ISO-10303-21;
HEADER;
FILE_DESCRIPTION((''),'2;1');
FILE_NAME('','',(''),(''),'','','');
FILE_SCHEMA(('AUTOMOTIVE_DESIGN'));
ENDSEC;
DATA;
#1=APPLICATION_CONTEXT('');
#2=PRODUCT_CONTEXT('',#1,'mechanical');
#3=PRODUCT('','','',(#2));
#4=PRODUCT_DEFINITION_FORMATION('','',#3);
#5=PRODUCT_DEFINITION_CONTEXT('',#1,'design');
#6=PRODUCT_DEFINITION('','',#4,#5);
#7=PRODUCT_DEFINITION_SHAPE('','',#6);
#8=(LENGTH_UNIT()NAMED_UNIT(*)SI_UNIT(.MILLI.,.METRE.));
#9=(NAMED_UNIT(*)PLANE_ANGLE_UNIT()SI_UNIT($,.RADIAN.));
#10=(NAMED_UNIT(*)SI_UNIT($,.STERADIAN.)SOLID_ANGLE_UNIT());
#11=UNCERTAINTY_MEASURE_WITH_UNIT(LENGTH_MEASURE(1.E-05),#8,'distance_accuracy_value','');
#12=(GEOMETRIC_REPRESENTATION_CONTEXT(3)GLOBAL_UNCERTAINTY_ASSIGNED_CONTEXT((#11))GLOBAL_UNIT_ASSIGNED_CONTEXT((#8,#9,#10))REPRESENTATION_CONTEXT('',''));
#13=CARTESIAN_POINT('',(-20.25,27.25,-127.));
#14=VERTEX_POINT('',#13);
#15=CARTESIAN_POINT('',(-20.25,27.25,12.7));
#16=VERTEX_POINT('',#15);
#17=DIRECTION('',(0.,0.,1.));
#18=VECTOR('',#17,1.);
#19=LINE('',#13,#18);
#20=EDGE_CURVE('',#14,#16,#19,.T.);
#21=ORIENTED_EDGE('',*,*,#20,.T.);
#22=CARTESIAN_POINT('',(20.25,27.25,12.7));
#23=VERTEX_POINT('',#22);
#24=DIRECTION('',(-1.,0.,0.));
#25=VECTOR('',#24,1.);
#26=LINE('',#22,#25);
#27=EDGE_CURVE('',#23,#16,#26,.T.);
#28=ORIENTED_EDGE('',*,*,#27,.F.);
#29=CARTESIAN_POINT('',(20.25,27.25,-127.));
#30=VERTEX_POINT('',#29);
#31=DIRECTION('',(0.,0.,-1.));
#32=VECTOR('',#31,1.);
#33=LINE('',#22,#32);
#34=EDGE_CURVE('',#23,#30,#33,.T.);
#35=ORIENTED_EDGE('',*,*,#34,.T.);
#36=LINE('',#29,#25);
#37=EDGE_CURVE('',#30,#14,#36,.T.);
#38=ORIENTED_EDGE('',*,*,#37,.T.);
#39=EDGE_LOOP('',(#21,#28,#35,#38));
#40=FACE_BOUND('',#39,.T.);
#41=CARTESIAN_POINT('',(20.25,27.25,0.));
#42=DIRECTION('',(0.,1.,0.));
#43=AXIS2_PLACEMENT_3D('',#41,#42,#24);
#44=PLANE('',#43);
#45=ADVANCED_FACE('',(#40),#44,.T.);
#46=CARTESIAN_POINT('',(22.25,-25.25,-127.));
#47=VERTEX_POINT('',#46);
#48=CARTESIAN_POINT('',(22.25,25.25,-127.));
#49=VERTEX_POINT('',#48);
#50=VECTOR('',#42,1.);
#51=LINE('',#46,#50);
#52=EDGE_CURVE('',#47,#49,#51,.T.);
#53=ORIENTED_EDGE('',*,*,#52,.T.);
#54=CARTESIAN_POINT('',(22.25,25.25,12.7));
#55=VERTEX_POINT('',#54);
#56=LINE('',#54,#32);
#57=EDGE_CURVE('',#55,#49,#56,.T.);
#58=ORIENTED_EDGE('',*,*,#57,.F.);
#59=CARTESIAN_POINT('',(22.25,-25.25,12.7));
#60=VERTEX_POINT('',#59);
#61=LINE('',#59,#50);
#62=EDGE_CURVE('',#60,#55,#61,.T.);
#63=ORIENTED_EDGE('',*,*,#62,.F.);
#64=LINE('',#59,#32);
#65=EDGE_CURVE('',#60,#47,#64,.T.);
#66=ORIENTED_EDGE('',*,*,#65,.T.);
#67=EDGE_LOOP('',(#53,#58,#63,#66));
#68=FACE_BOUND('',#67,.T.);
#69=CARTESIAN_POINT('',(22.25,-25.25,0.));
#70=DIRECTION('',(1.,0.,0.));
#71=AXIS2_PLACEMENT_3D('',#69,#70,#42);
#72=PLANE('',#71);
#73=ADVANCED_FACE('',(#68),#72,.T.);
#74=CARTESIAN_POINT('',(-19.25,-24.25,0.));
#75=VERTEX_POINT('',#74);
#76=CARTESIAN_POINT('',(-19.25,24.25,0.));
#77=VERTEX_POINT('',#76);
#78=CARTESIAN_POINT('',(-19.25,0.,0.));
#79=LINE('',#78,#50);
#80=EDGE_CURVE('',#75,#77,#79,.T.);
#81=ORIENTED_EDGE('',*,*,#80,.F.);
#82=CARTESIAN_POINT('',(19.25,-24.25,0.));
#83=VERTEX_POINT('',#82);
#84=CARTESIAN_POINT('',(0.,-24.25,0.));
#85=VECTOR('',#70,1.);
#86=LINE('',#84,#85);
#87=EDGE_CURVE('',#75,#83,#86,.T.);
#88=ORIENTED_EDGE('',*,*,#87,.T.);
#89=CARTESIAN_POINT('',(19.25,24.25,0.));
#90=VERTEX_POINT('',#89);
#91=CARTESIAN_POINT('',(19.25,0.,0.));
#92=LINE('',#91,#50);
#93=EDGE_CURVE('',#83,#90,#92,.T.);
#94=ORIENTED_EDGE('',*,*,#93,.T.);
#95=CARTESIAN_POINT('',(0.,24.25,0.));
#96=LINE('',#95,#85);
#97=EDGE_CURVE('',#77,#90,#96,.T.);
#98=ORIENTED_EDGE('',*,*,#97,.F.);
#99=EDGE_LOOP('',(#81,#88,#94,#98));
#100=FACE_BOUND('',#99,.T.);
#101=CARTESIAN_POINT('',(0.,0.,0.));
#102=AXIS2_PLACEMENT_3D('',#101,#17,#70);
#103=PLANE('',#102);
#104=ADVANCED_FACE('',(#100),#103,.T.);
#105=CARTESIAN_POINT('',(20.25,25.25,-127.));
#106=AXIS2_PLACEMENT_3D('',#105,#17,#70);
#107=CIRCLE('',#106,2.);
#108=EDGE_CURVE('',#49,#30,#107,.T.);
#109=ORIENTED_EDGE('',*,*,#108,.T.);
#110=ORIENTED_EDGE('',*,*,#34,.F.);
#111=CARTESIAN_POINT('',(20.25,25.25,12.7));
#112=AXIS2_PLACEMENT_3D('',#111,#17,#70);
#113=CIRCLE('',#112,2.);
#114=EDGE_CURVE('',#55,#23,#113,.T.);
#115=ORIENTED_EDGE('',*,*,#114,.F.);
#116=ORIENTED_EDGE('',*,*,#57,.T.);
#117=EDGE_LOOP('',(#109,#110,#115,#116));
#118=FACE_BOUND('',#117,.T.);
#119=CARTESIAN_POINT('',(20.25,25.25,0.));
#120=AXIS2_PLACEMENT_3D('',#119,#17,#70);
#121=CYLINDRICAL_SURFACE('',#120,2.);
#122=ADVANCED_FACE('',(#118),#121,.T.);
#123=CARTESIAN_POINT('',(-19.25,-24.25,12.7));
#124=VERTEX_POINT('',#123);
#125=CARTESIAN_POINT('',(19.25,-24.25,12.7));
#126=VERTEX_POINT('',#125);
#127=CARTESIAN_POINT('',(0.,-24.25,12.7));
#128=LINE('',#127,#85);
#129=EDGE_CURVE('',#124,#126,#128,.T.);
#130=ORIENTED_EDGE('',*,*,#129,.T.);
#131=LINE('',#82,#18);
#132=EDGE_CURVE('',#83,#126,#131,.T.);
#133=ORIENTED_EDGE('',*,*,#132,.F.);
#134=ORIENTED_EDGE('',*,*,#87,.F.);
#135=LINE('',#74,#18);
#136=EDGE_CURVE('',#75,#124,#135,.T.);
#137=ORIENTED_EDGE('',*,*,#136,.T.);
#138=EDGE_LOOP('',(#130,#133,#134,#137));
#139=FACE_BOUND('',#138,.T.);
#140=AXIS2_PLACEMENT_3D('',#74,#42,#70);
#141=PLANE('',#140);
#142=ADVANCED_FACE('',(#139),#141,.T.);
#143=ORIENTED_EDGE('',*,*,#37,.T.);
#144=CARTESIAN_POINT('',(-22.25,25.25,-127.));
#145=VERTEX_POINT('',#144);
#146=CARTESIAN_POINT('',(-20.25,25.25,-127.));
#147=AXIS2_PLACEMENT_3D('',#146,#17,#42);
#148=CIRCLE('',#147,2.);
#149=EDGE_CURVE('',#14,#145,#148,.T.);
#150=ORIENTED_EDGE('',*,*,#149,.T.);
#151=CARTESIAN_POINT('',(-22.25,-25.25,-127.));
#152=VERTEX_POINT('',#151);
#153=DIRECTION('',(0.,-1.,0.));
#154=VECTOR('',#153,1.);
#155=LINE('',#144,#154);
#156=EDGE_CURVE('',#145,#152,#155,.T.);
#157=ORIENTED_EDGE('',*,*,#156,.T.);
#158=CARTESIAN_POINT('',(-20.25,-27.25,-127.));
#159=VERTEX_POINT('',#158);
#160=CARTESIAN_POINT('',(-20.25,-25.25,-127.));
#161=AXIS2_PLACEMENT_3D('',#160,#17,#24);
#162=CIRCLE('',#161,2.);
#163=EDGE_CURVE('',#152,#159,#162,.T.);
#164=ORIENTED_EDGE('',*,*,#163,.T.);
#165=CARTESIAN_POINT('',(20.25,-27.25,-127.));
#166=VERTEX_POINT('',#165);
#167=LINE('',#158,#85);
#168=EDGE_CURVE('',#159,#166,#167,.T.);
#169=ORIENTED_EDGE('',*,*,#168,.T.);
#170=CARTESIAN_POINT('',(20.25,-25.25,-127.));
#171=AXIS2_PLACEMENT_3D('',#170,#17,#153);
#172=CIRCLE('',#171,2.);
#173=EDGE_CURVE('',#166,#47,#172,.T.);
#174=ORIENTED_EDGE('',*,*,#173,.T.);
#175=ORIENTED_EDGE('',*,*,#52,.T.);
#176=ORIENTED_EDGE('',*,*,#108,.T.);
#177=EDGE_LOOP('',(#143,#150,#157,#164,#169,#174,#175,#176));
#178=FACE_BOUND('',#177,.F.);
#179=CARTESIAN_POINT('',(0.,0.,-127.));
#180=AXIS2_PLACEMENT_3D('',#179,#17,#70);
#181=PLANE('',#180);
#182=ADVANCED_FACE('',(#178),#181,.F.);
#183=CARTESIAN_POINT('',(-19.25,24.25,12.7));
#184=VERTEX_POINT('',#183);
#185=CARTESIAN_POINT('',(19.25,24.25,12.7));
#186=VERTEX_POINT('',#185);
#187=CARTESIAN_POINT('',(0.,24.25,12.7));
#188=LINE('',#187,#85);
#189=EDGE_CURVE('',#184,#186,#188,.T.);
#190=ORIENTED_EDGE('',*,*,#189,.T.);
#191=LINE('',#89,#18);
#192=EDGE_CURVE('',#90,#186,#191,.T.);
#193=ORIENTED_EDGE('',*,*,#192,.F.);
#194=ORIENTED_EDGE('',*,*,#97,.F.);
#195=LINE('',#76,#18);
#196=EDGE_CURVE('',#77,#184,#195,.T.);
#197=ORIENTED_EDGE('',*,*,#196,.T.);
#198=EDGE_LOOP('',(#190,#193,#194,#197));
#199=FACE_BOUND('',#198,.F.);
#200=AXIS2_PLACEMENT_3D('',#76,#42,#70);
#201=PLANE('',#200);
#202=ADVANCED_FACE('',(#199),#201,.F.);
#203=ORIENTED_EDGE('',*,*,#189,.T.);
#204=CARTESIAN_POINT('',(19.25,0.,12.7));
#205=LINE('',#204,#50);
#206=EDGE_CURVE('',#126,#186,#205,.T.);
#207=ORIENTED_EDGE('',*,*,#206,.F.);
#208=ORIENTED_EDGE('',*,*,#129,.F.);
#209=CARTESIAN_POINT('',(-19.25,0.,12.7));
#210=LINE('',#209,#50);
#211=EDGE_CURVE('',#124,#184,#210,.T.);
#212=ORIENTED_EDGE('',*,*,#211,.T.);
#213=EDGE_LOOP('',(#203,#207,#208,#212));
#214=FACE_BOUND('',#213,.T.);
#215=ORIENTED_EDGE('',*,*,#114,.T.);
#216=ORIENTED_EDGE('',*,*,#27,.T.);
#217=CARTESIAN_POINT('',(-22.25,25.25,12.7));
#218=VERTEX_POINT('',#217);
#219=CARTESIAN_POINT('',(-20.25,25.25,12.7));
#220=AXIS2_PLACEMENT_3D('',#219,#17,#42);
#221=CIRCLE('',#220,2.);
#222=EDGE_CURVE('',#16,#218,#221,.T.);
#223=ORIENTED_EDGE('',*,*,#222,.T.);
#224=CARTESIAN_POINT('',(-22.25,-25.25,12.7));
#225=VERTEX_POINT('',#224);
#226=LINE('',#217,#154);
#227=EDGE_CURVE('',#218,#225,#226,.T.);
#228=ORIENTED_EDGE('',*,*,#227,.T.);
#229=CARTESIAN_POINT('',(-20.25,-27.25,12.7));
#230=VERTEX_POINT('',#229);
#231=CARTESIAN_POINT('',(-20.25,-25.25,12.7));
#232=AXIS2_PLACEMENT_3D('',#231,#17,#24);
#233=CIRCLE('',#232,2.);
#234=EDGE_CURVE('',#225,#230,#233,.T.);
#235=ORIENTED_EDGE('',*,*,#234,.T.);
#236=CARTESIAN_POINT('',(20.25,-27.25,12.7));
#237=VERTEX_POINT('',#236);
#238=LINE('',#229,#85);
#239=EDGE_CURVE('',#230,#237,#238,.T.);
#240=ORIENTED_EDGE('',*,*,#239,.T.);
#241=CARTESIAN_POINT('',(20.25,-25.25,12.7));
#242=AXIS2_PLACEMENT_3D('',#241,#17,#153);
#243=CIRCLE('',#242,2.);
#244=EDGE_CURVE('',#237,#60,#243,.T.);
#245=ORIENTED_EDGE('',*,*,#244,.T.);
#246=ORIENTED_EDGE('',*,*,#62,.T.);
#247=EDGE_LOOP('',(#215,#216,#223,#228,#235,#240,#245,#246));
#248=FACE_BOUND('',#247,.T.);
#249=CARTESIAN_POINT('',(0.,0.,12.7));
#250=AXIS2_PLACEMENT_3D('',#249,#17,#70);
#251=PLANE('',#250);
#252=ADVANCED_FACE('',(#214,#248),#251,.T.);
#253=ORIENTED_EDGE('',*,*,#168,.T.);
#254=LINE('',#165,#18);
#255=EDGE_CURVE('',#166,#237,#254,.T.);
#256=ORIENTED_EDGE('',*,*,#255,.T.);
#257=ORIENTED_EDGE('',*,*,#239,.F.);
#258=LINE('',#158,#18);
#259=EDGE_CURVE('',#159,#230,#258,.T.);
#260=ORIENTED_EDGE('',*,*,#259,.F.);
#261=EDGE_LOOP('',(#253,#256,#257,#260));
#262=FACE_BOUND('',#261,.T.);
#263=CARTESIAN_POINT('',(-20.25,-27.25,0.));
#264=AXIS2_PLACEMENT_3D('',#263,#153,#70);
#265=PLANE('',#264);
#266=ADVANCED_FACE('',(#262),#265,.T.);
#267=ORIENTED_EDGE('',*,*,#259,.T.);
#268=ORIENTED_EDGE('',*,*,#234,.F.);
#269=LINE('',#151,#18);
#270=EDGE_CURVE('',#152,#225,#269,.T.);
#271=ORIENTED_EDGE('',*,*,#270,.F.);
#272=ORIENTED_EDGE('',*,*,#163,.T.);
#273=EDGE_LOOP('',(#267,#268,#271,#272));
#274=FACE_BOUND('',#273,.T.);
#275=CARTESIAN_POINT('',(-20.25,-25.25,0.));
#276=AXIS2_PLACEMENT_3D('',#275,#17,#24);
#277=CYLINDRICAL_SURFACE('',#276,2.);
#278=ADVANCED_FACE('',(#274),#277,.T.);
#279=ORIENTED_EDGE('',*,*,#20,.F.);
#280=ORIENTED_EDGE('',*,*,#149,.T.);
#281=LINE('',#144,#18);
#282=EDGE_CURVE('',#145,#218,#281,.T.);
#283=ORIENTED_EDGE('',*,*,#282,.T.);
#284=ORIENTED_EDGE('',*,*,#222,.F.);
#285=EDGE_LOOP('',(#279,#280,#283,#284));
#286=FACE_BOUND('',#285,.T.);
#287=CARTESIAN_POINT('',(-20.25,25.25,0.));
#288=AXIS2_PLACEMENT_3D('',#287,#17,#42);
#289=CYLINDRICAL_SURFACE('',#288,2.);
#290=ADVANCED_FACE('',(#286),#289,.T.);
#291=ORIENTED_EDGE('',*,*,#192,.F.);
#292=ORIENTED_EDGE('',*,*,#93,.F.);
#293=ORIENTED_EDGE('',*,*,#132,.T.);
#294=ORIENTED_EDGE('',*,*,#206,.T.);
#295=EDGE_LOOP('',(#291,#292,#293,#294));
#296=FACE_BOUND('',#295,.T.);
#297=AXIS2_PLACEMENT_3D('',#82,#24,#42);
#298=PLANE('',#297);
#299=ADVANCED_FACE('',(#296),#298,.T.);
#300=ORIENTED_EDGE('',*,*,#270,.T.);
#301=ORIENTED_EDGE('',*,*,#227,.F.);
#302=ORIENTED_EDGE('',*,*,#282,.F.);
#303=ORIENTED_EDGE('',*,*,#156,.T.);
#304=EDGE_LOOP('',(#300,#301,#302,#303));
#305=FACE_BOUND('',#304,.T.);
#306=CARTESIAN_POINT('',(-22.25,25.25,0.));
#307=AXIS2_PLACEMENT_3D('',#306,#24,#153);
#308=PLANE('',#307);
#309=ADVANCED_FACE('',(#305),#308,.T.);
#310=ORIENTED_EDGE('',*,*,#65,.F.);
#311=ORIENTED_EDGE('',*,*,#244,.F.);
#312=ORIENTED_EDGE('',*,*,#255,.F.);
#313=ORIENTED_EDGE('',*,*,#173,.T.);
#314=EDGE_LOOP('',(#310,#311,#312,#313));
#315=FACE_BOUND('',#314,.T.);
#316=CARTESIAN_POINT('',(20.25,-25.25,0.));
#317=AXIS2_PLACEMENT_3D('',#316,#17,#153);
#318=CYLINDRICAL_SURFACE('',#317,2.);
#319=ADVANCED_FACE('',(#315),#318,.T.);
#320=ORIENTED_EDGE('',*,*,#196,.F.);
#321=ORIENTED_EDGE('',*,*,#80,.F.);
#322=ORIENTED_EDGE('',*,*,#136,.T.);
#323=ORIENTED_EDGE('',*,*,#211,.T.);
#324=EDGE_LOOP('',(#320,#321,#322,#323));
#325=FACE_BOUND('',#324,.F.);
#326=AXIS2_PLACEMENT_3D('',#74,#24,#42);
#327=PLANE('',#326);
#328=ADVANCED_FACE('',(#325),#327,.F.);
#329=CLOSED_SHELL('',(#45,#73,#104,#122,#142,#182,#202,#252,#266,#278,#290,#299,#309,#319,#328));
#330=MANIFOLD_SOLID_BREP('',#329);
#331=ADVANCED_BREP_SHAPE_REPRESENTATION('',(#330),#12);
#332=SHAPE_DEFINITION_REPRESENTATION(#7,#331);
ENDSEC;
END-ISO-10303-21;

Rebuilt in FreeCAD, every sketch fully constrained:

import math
import FreeCAD as App
import Part
import Sketcher
from FreeCAD import Vector
Q = App.Units.Quantity


def add_polygon(sketch, points):
    """Adds a closed chain of lines whose ends are joined by coincident constraints."""
    first, n = sketch.GeometryCount, len(points)
    for a, b in zip(points, points[1:] + points[:1]):
        sketch.addGeometry(Part.LineSegment(App.Vector(*a, 0), App.Vector(*b, 0)), False)
    for i in range(n):
        sketch.addConstraint(Sketcher.Constraint("Coincident", first + i, 2, first + (i + 1) % n, 1))

doc = App.newDocument("Part")
body = doc.addObject("PartDesign::Body", "Body")

# Sketch on XY plane
sketch1 = body.newObject("Sketcher::SketchObject", "Sketch")
sketch1.AttachmentSupport = (doc.getObject("XY_Plane"), [""])
sketch1.MapMode = "FlatFace"
sketch1.addGeometry(Part.LineSegment(Vector(20.2, 27.2, 0), Vector(-20.2, 27.2, 0)), False)  # 0
sketch1.addGeometry(Part.ArcOfCircle(Part.Circle(Vector(-20.2, 25.2, 0), Vector(0, 0, 1), 2), math.radians(90), math.radians(180)), False)  # 1
sketch1.addGeometry(Part.LineSegment(Vector(-22.2, 25.2, 0), Vector(-22.2, -25.2, 0)), False)  # 2
sketch1.addGeometry(Part.ArcOfCircle(Part.Circle(Vector(-20.2, -25.2, 0), Vector(0, 0, 1), 2), math.radians(180), math.radians(270)), False)  # 3
sketch1.addGeometry(Part.LineSegment(Vector(-20.2, -27.2, 0), Vector(20.2, -27.2, 0)), False)  # 4
sketch1.addGeometry(Part.ArcOfCircle(Part.Circle(Vector(20.2, -25.2, 0), Vector(0, 0, 1), 2), math.radians(-90), math.radians(0)), False)  # 5
sketch1.addGeometry(Part.LineSegment(Vector(22.2, -25.2, 0), Vector(22.2, 25.2, 0)), False)  # 6
sketch1.addGeometry(Part.ArcOfCircle(Part.Circle(Vector(20.2, 25.2, 0), Vector(0, 0, 1), 2), math.radians(0), math.radians(90)), False)  # 7
add_polygon(sketch1, [(19.2, -24.2), (-19.2, -24.2), (-19.2, 24.2), (19.2, 24.2)])  # lines 8-11
sketch1.addConstraint([
    Sketcher.Constraint("Tangent", 0, 2, 1, 1),
    Sketcher.Constraint("Tangent", 1, 2, 2, 1),
    Sketcher.Constraint("Tangent", 2, 2, 3, 1),
    Sketcher.Constraint("Tangent", 3, 2, 4, 1),
    Sketcher.Constraint("Tangent", 4, 2, 5, 1),
    Sketcher.Constraint("Tangent", 5, 2, 6, 1),
    Sketcher.Constraint("Tangent", 6, 2, 7, 1),
    Sketcher.Constraint("Tangent", 7, 2, 0, 1),
    Sketcher.Constraint("Horizontal", 0),
    Sketcher.Constraint("Vertical", 2),
    Sketcher.Constraint("Horizontal", 4),
    Sketcher.Constraint("Vertical", 6),
    Sketcher.Constraint("Horizontal", 8),
    Sketcher.Constraint("Vertical", 9),
    Sketcher.Constraint("Horizontal", 10),
    Sketcher.Constraint("Vertical", 11),
    Sketcher.Constraint("Equal", 1, 3),
    Sketcher.Constraint("Equal", 3, 5),
    Sketcher.Constraint("Equal", 5, 7),
    Sketcher.Constraint("Symmetric", 1, 3, 5, 3, -1, 1),
    Sketcher.Constraint("Symmetric", 8, 2, 10, 2, -1, 1),
    Sketcher.Constraint("Radius", 1, Q("2 mm")),
    Sketcher.Constraint("DistanceX", 0, 2, 0, 1, Q("40.5 mm")),
    Sketcher.Constraint("DistanceX", 8, 2, 8, 1, Q("38.5 mm")),
    Sketcher.Constraint("DistanceY", 2, 2, 2, 1, Q("50.5 mm")),
    Sketcher.Constraint("DistanceY", 9, 1, 9, 2, Q("48.5 mm")),
])
pad1 = body.newObject("PartDesign::Pad", "Pad")
pad1.Profile = sketch1
pad1.Length = 12.7

# Sketch on XY plane
sketch2 = body.newObject("Sketcher::SketchObject", "Sketch001")
sketch2.AttachmentSupport = (doc.getObject("XY_Plane"), [""])
sketch2.MapMode = "FlatFace"
sketch2.addGeometry([
    Part.LineSegment(Vector(20.2, 27.2, 0), Vector(-20.2, 27.2, 0)),  # 0
    Part.ArcOfCircle(Part.Circle(Vector(-20.2, 25.2, 0), Vector(0, 0, 1), 2), math.radians(90), math.radians(180)),  # 1
    Part.LineSegment(Vector(-22.2, 25.2, 0), Vector(-22.2, -25.2, 0)),  # 2
    Part.ArcOfCircle(Part.Circle(Vector(-20.2, -25.2, 0), Vector(0, 0, 1), 2), math.radians(180), math.radians(270)),  # 3
    Part.LineSegment(Vector(-20.2, -27.2, 0), Vector(20.2, -27.2, 0)),  # 4
    Part.ArcOfCircle(Part.Circle(Vector(20.2, -25.2, 0), Vector(0, 0, 1), 2), math.radians(-90), math.radians(0)),  # 5
    Part.LineSegment(Vector(22.2, -25.2, 0), Vector(22.2, 25.2, 0)),  # 6
    Part.ArcOfCircle(Part.Circle(Vector(20.2, 25.2, 0), Vector(0, 0, 1), 2), math.radians(0), math.radians(90)),  # 7
], False)
sketch2.addConstraint([
    Sketcher.Constraint("Tangent", 0, 2, 1, 1),
    Sketcher.Constraint("Tangent", 1, 2, 2, 1),
    Sketcher.Constraint("Tangent", 2, 2, 3, 1),
    Sketcher.Constraint("Tangent", 3, 2, 4, 1),
    Sketcher.Constraint("Tangent", 4, 2, 5, 1),
    Sketcher.Constraint("Tangent", 5, 2, 6, 1),
    Sketcher.Constraint("Tangent", 6, 2, 7, 1),
    Sketcher.Constraint("Tangent", 7, 2, 0, 1),
    Sketcher.Constraint("Horizontal", 0),
    Sketcher.Constraint("Vertical", 2),
    Sketcher.Constraint("Horizontal", 4),
    Sketcher.Constraint("Vertical", 6),
    Sketcher.Constraint("Equal", 1, 3),
    Sketcher.Constraint("Equal", 3, 5),
    Sketcher.Constraint("Equal", 5, 7),
    Sketcher.Constraint("Symmetric", 1, 3, 5, 3, -1, 1),
    Sketcher.Constraint("Radius", 1, Q("2 mm")),
    Sketcher.Constraint("DistanceX", 0, 2, 0, 1, Q("40.5 mm")),
    Sketcher.Constraint("DistanceY", 2, 2, 2, 1, Q("50.5 mm")),
])
pad2 = body.newObject("PartDesign::Pad", "Pad001")
pad2.Profile = sketch2
pad2.Length = 127
pad2.Reversed = True

doc.recompute()
